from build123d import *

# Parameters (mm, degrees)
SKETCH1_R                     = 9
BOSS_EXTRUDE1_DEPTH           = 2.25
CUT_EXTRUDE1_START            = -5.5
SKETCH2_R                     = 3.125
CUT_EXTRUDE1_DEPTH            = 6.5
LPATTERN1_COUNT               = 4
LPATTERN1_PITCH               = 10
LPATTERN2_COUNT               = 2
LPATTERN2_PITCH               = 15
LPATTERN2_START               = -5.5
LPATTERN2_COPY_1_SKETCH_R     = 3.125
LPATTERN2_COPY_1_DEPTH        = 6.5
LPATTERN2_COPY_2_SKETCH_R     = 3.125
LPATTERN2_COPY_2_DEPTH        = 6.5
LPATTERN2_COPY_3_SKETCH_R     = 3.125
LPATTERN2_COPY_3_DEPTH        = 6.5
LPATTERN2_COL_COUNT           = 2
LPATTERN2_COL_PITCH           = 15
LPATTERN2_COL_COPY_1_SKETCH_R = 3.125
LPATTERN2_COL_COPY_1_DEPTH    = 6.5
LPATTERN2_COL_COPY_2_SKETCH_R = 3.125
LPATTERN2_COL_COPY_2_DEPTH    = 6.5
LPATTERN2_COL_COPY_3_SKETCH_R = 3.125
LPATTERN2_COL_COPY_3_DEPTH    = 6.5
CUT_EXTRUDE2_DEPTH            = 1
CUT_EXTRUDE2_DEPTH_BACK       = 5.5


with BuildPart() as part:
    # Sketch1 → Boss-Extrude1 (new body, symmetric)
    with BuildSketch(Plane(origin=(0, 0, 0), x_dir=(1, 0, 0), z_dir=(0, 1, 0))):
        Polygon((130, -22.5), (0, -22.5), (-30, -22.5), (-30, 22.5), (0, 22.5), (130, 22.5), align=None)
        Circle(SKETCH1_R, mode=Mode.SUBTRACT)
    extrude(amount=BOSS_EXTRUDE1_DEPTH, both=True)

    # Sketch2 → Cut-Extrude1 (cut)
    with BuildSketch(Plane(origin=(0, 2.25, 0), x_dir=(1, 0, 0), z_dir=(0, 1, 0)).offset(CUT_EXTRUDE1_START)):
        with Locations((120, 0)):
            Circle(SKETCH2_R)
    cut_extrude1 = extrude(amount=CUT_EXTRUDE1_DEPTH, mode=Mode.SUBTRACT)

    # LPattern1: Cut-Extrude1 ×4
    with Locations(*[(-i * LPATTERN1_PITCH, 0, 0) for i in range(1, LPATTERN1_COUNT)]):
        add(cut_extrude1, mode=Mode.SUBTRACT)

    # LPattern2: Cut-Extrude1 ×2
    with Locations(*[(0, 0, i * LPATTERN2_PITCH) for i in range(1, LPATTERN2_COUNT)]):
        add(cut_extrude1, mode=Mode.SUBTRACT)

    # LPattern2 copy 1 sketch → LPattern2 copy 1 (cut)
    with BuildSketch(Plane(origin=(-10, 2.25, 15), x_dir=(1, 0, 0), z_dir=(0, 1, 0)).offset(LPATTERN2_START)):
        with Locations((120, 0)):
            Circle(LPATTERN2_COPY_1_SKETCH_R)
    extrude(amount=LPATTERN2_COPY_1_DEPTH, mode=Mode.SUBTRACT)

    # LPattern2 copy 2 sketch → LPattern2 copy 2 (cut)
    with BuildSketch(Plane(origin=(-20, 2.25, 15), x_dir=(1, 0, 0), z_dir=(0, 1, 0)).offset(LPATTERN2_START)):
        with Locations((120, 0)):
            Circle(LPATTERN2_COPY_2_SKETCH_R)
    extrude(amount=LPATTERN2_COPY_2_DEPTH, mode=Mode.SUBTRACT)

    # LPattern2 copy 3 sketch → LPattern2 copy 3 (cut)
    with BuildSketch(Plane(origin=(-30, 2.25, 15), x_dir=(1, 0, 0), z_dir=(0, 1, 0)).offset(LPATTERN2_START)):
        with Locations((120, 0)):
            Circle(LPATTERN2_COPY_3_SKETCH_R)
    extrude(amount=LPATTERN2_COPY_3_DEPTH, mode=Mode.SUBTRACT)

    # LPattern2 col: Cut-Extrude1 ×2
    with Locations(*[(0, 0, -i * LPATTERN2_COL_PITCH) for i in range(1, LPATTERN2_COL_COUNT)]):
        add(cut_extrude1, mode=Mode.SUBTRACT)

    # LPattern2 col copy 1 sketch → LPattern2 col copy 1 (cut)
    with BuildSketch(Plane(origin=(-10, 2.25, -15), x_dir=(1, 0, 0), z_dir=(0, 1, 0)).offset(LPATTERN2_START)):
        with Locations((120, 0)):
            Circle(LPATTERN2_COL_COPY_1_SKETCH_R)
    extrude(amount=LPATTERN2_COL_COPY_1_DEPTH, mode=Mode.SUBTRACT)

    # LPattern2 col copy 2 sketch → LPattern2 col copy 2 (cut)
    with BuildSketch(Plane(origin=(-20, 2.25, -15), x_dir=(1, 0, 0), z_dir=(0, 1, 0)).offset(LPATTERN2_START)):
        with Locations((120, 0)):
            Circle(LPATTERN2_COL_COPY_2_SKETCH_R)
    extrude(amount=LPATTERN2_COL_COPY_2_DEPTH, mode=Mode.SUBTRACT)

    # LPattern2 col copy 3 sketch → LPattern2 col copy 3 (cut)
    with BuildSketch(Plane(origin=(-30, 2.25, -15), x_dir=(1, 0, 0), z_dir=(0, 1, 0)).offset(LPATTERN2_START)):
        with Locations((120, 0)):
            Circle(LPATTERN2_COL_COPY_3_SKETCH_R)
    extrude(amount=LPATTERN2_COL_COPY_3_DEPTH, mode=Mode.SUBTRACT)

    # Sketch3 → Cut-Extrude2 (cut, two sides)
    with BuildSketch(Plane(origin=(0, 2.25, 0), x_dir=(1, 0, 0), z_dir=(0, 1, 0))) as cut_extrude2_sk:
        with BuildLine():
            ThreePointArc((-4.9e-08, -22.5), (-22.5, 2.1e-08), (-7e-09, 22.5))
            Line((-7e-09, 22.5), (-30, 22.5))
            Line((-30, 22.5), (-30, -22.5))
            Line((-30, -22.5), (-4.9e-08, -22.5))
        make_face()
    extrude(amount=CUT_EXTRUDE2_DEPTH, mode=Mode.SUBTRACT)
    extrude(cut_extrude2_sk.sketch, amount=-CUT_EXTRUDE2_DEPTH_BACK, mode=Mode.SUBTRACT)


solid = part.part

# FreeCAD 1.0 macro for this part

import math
import FreeCAD as App
import Part
import Sketcher
Q = App.Units.Quantity

doc = App.newDocument("Part")
body = doc.addObject("PartDesign::Body", "Body")

sketch1 = doc.addObject("Sketcher::SketchObject", "Sketch")
body.addObject(sketch1)
sketch1.AttachmentSupport = (doc.XZ_Plane, [""])
sketch1.MapMode = "FlatFace"
sketch1.addGeometry([
    Part.LineSegment(App.Vector(-30, 22, 0), App.Vector(130, 22, 0)),
    Part.LineSegment(App.Vector(130, 22, 0), App.Vector(130, -22, 0)),
    Part.LineSegment(App.Vector(130, -22, 0), App.Vector(-30, -22, 0)),
    Part.LineSegment(App.Vector(-30, -22, 0), App.Vector(-30, 22, 0)),
    Part.Circle(App.Vector(0, 0, 0), App.Vector(0, 0, 1), 9),
], False)
sketch1.addConstraint([
    Sketcher.Constraint("Coincident", 0, 2, 1, 1),
    Sketcher.Constraint("Coincident", 1, 2, 2, 1),
    Sketcher.Constraint("Coincident", 2, 2, 3, 1),
    Sketcher.Constraint("Coincident", 3, 2, 0, 1),
    Sketcher.Constraint("Horizontal", 0),
    Sketcher.Constraint("Vertical", 1),
    Sketcher.Constraint("Horizontal", 2),
    Sketcher.Constraint("Vertical", 3),
    Sketcher.Constraint("Coincident", 4, 3, -1, 1),
    Sketcher.Constraint("Diameter", 4, Q("18 mm")),
    Sketcher.Constraint("DistanceX", 0, 1, 0, 2, Q("160 mm")),
    Sketcher.Constraint("DistanceY", 1, 2, 1, 1, Q("45 mm")),
    Sketcher.Constraint("DistanceX", -1, 1, 0, 2, Q("130 mm")),
    Sketcher.Constraint("DistanceY", -1, 1, 0, 2, Q("22.5 mm")),
])
pad1 = doc.addObject("PartDesign::Pad", "Pad")
body.addObject(pad1)
pad1.Profile = sketch1
pad1.Length = 4.5
pad1.Midplane = True

sketch2 = doc.addObject("Sketcher::SketchObject", "Sketch001")
body.addObject(sketch2)
sketch2.AttachmentSupport = (doc.XZ_Plane, [""])
sketch2.MapMode = "FlatFace"
sketch2.AttachmentOffset = App.Placement(App.Vector(0, 0, 3.25), App.Rotation())
sketch2.addGeometry(Part.Circle(App.Vector(120, 0, 0), App.Vector(0, 0, 1), 3.1), False)
sketch2.addConstraint([
    Sketcher.Constraint("PointOnObject", 0, 3, -1),
    Sketcher.Constraint("Diameter", 0, Q("6.25 mm")),
    Sketcher.Constraint("DistanceX", -1, 1, 0, 3, Q("120 mm")),
])
pocket1 = doc.addObject("PartDesign::Pocket", "Pocket")
body.addObject(pocket1)
pocket1.Profile = sketch2
pocket1.Length = 6.5
doc.recompute()

linearpattern = doc.addObject("PartDesign::LinearPattern", "LinearPattern")
body.addObject(linearpattern)
linearpattern.Originals = [pocket1]
linearpattern.Direction = (doc.X_Axis, [""])
linearpattern.Mode = "offset"
linearpattern.Offset = 10
linearpattern.Occurrences = 4
linearpattern.Reversed = True
body.Tip = linearpattern
doc.recompute()

linearpattern2 = doc.addObject("PartDesign::LinearPattern", "LinearPattern001")
body.addObject(linearpattern2)
linearpattern2.Originals = [pocket1]
linearpattern2.Direction = (doc.Z_Axis, [""])
linearpattern2.Mode = "offset"
linearpattern2.Offset = 15
linearpattern2.Occurrences = 2
body.Tip = linearpattern2

sketch3 = doc.addObject("Sketcher::SketchObject", "Sketch002")
body.addObject(sketch3)
sketch3.AttachmentSupport = (doc.XZ_Plane, [""])
sketch3.MapMode = "FlatFace"
sketch3.AttachmentOffset = App.Placement(App.Vector(0, 0, 3.25), App.Rotation())
sketch3.addGeometry(Part.Circle(App.Vector(110, 15, 0), App.Vector(0, 0, 1), 3.1), False)
sketch3.addConstraint([
    Sketcher.Constraint("Diameter", 0, Q("6.25 mm")),
    Sketcher.Constraint("DistanceX", -1, 1, 0, 3, Q("110 mm")),
    Sketcher.Constraint("DistanceY", -1, 1, 0, 3, Q("15 mm")),
])
pocket2 = doc.addObject("PartDesign::Pocket", "Pocket001")
body.addObject(pocket2)
pocket2.Profile = sketch3
pocket2.Length = 6.5

sketch4 = doc.addObject("Sketcher::SketchObject", "Sketch003")
body.addObject(sketch4)
sketch4.AttachmentSupport = (doc.XZ_Plane, [""])
sketch4.MapMode = "FlatFace"
sketch4.AttachmentOffset = App.Placement(App.Vector(0, 0, 3.25), App.Rotation())
sketch4.addGeometry(Part.Circle(App.Vector(100, 15, 0), App.Vector(0, 0, 1), 3.1), False)
sketch4.addConstraint([
    Sketcher.Constraint("Diameter", 0, Q("6.25 mm")),
    Sketcher.Constraint("DistanceX", -1, 1, 0, 3, Q("100 mm")),
    Sketcher.Constraint("DistanceY", -1, 1, 0, 3, Q("15 mm")),
])
pocket3 = doc.addObject("PartDesign::Pocket", "Pocket002")
body.addObject(pocket3)
pocket3.Profile = sketch4
pocket3.Length = 6.5

sketch5 = doc.addObject("Sketcher::SketchObject", "Sketch004")
body.addObject(sketch5)
sketch5.AttachmentSupport = (doc.XZ_Plane, [""])
sketch5.MapMode = "FlatFace"
sketch5.AttachmentOffset = App.Placement(App.Vector(0, 0, 3.25), App.Rotation())
sketch5.addGeometry(Part.Circle(App.Vector(90, 15, 0), App.Vector(0, 0, 1), 3.1), False)
sketch5.addConstraint([
    Sketcher.Constraint("Diameter", 0, Q("6.25 mm")),
    Sketcher.Constraint("DistanceX", -1, 1, 0, 3, Q("90 mm")),
    Sketcher.Constraint("DistanceY", -1, 1, 0, 3, Q("15 mm")),
])
pocket4 = doc.addObject("PartDesign::Pocket", "Pocket003")
body.addObject(pocket4)
pocket4.Profile = sketch5
pocket4.Length = 6.5
doc.recompute()

linearpattern3 = doc.addObject("PartDesign::LinearPattern", "LinearPattern002")
body.addObject(linearpattern3)
linearpattern3.Originals = [pocket1]
linearpattern3.Direction = (doc.Z_Axis, [""])
linearpattern3.Mode = "offset"
linearpattern3.Offset = 15
linearpattern3.Occurrences = 2
linearpattern3.Reversed = True
body.Tip = linearpattern3

sketch6 = doc.addObject("Sketcher::SketchObject", "Sketch005")
body.addObject(sketch6)
sketch6.AttachmentSupport = (doc.XZ_Plane, [""])
sketch6.MapMode = "FlatFace"
sketch6.AttachmentOffset = App.Placement(App.Vector(0, 0, 3.25), App.Rotation())
sketch6.addGeometry(Part.Circle(App.Vector(110, -15, 0), App.Vector(0, 0, 1), 3.1), False)
sketch6.addConstraint([
    Sketcher.Constraint("Diameter", 0, Q("6.25 mm")),
    Sketcher.Constraint("DistanceX", -1, 1, 0, 3, Q("110 mm")),
    Sketcher.Constraint("DistanceY", 0, 3, -1, 1, Q("15 mm")),
])
pocket5 = doc.addObject("PartDesign::Pocket", "Pocket004")
body.addObject(pocket5)
pocket5.Profile = sketch6
pocket5.Length = 6.5

sketch7 = doc.addObject("Sketcher::SketchObject", "Sketch006")
body.addObject(sketch7)
sketch7.AttachmentSupport = (doc.XZ_Plane, [""])
sketch7.MapMode = "FlatFace"
sketch7.AttachmentOffset = App.Placement(App.Vector(0, 0, 3.25), App.Rotation())
sketch7.addGeometry(Part.Circle(App.Vector(100, -15, 0), App.Vector(0, 0, 1), 3.1), False)
sketch7.addConstraint([
    Sketcher.Constraint("Diameter", 0, Q("6.25 mm")),
    Sketcher.Constraint("DistanceX", -1, 1, 0, 3, Q("100 mm")),
    Sketcher.Constraint("DistanceY", 0, 3, -1, 1, Q("15 mm")),
])
pocket6 = doc.addObject("PartDesign::Pocket", "Pocket005")
body.addObject(pocket6)
pocket6.Profile = sketch7
pocket6.Length = 6.5

sketch8 = doc.addObject("Sketcher::SketchObject", "Sketch007")
body.addObject(sketch8)
sketch8.AttachmentSupport = (doc.XZ_Plane, [""])
sketch8.MapMode = "FlatFace"
sketch8.AttachmentOffset = App.Placement(App.Vector(0, 0, 3.25), App.Rotation())
sketch8.addGeometry(Part.Circle(App.Vector(90, -15, 0), App.Vector(0, 0, 1), 3.1), False)
sketch8.addConstraint([
    Sketcher.Constraint("Diameter", 0, Q("6.25 mm")),
    Sketcher.Constraint("DistanceX", -1, 1, 0, 3, Q("90 mm")),
    Sketcher.Constraint("DistanceY", 0, 3, -1, 1, Q("15 mm")),
])
pocket7 = doc.addObject("PartDesign::Pocket", "Pocket006")
body.addObject(pocket7)
pocket7.Profile = sketch8
pocket7.Length = 6.5

sketch9 = doc.addObject("Sketcher::SketchObject", "Sketch008")
body.addObject(sketch9)
sketch9.AttachmentSupport = (doc.XZ_Plane, [""])
sketch9.MapMode = "FlatFace"
sketch9.AttachmentOffset = App.Placement(App.Vector(0, 0, -2.25), App.Rotation())
sketch9.addGeometry([
    Part.ArcOfCircle(Part.Circle(App.Vector(0, 0, 0), App.Vector(0, 0, 1), 22), math.radians(90), math.radians(270)),
    Part.LineSegment(App.Vector(0, -22, 0), App.Vector(-30, -22, 0)),
    Part.LineSegment(App.Vector(-30, -22, 0), App.Vector(-30, 22, 0)),
    Part.LineSegment(App.Vector(-30, 22, 0), App.Vector(0, 22, 0)),
], False)
sketch9.addConstraint([
    Sketcher.Constraint("Tangent", 0, 2, 1, 1),
    Sketcher.Constraint("Coincident", 1, 2, 2, 1),
    Sketcher.Constraint("Coincident", 2, 2, 3, 1),
    Sketcher.Constraint("Tangent", 3, 2, 0, 1),
    Sketcher.Constraint("Horizontal", 1),
    Sketcher.Constraint("Vertical", 2),
    Sketcher.Constraint("Horizontal", 3),
    Sketcher.Constraint("Coincident", 0, 3, -1, 1),
    Sketcher.Constraint("Radius", 0, Q("22.5 mm")),
    Sketcher.Constraint("DistanceX", 1, 2, 1, 1, Q("30 mm")),
])
pocket8 = doc.addObject("PartDesign::Pocket", "Pocket007")
body.addObject(pocket8)
pocket8.Profile = sketch9
pocket8.Type = "ThroughAll"
pocket8.Midplane = True

doc.recompute()
